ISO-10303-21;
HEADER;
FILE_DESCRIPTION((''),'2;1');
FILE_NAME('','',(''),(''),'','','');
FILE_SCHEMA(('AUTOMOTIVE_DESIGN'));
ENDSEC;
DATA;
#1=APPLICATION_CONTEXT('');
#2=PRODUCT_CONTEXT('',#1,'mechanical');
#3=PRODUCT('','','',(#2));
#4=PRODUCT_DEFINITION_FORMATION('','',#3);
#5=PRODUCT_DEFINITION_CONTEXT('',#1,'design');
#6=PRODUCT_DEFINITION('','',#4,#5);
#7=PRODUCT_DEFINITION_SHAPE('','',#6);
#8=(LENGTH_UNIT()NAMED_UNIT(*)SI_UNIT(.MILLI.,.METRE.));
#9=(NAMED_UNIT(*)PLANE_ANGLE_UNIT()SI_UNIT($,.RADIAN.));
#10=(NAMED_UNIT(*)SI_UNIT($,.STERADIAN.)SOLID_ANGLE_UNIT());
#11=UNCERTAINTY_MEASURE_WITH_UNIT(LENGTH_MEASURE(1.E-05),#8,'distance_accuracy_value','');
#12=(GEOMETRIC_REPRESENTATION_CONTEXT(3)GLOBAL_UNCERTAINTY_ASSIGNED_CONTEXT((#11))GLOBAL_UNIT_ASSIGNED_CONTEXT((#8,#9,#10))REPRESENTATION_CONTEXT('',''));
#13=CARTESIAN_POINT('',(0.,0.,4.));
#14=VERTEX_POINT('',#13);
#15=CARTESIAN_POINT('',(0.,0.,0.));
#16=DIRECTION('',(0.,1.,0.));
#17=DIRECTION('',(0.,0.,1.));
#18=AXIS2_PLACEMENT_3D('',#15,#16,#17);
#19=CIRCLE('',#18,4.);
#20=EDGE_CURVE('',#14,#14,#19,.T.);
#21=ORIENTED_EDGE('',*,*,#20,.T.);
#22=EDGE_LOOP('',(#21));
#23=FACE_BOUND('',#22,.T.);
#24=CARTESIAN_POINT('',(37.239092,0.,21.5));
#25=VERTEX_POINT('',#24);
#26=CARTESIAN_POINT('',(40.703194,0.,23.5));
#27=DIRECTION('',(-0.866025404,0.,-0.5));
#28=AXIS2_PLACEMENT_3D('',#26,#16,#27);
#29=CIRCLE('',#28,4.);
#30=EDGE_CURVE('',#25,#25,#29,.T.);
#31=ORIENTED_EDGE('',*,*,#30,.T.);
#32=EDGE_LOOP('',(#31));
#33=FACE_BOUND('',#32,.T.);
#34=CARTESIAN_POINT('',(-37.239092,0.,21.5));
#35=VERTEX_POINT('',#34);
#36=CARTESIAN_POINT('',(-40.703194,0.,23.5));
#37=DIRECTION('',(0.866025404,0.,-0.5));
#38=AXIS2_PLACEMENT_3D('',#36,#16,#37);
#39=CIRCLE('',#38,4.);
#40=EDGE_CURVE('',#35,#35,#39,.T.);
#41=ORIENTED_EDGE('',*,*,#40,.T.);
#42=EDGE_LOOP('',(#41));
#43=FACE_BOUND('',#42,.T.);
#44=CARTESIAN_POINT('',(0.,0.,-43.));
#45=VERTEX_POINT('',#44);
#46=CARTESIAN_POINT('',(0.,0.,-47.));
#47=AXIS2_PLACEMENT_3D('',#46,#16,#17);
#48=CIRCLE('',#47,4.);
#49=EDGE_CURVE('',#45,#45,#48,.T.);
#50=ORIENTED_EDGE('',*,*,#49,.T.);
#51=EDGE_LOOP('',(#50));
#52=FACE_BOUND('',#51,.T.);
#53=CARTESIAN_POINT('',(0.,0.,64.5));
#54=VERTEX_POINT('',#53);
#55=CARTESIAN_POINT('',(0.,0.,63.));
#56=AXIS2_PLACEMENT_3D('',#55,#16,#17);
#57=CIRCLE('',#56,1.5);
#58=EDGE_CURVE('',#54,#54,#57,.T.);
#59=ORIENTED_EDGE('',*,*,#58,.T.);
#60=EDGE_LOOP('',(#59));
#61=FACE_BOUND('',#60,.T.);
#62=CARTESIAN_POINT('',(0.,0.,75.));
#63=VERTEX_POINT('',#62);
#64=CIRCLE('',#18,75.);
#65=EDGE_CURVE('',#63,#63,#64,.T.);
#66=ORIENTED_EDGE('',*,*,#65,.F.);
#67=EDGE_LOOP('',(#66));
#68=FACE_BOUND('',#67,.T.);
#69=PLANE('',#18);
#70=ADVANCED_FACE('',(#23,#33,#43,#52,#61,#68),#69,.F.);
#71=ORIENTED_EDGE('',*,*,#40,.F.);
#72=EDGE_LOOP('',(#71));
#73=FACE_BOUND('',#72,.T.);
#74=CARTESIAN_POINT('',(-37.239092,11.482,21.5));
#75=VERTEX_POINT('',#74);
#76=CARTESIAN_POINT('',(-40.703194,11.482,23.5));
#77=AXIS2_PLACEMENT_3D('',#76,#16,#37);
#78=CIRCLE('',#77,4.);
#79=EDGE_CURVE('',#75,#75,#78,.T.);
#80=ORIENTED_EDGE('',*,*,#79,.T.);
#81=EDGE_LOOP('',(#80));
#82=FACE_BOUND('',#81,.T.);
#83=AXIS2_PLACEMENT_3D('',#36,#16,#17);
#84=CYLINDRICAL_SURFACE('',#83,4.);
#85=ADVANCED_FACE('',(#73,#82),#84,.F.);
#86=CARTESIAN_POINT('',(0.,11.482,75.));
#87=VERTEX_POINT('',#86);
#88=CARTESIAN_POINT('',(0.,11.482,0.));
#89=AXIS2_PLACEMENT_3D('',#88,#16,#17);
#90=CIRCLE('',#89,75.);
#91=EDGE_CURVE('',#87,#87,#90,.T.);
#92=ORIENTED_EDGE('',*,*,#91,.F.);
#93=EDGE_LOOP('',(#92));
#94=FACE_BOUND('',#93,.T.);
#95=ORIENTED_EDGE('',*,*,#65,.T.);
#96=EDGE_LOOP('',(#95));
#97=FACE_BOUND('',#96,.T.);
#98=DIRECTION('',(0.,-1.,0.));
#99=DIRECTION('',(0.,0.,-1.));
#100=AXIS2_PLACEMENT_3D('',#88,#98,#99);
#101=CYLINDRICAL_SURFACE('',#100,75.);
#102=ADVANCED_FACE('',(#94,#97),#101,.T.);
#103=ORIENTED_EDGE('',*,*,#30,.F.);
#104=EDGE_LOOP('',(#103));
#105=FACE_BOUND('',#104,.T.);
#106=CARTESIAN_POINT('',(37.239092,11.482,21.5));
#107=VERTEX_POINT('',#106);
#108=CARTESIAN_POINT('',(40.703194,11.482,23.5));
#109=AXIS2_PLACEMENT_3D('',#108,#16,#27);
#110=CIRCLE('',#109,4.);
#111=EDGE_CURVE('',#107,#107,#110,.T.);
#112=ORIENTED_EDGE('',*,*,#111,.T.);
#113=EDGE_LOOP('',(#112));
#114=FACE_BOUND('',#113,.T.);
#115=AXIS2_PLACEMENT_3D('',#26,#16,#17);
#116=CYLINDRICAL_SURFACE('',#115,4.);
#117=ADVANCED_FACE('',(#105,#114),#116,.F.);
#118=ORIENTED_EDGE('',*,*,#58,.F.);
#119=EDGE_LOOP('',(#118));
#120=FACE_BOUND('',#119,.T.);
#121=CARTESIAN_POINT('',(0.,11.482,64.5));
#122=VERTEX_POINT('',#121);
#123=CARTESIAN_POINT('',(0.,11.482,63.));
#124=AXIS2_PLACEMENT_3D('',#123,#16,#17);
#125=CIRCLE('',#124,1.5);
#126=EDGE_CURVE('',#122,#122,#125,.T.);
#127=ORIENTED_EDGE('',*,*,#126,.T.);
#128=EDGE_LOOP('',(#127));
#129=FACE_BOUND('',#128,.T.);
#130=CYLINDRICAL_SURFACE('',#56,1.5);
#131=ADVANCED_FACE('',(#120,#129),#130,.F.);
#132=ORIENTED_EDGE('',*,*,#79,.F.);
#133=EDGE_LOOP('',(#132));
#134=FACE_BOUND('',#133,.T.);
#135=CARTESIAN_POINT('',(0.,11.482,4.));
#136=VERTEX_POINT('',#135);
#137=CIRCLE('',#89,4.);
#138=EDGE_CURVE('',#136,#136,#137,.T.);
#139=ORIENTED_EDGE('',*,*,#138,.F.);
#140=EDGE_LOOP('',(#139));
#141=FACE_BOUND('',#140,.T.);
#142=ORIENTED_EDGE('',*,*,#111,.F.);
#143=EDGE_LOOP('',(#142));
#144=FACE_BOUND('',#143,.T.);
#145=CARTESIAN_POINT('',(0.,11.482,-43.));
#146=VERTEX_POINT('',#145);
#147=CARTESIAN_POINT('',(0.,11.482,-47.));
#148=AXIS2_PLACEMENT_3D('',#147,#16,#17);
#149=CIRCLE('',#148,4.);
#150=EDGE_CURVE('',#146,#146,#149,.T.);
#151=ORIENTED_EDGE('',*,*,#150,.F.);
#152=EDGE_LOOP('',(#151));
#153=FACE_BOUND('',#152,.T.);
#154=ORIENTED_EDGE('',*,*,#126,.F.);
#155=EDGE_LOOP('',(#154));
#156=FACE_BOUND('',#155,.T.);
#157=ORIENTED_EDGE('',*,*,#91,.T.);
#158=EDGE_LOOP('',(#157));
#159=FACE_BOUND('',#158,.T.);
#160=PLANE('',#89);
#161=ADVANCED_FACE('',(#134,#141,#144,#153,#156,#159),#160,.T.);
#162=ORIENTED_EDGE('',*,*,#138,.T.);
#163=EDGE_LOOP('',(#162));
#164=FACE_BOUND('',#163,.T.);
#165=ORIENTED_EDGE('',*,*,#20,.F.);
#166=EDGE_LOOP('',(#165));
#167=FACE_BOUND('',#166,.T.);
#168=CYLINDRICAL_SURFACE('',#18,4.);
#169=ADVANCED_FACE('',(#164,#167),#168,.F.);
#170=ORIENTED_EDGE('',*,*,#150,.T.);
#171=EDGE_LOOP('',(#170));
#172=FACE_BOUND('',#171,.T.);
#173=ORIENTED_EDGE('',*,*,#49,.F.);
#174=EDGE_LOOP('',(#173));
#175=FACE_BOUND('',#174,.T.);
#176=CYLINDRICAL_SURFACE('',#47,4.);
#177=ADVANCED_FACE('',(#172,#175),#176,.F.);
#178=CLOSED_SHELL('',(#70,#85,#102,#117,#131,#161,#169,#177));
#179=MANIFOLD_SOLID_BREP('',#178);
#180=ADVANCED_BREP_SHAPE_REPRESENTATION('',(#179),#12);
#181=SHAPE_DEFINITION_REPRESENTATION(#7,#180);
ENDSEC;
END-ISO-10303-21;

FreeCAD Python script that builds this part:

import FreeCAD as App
import Part
import Sketcher
Q = App.Units.Quantity

doc = App.newDocument("Part")
body = doc.addObject("PartDesign::Body", "Body")

sketch1 = body.newObject("Sketcher::SketchObject", "Sketch")
sketch1.AttachmentSupport = (doc.getObject("XZ_Plane"), [""])
sketch1.MapMode = "FlatFace"
sketch1.addGeometry(Part.Circle(App.Vector(0, 0, 0), App.Vector(0, 0, 1), 75), False)
sketch1.addConstraint([
    Sketcher.Constraint("Coincident", 0, 3, -1, 1),
    Sketcher.Constraint("Diameter", 0, Q("150 mm")),
])
pad1 = body.newObject("PartDesign::Pad", "Pad")
pad1.Profile = sketch1
pad1.Length = 11.482
pad1.Reversed = True

sketch2 = body.newObject("Sketcher::SketchObject", "Sketch001")
sketch2.AttachmentSupport = (doc.getObject("XZ_Plane"), [""])
sketch2.MapMode = "FlatFace"
sketch2.AttachmentOffset = App.Placement(App.Vector(0, 0, -11.482), App.Rotation())
sketch2.addGeometry(Part.Circle(App.Vector(0, -47, 0), App.Vector(0, 0, 1), 4), False)
sketch2.addConstraint([
    Sketcher.Constraint("PointOnObject", 0, 3, -2),
    Sketcher.Constraint("Diameter", 0, Q("8 mm")),
    Sketcher.Constraint("DistanceY", 0, 3, -1, 1, Q("47 mm")),
])
pocket1 = body.newObject("PartDesign::Pocket", "Pocket")
pocket1.Profile = sketch2
pocket1.Type = "ThroughAll"
pocket1.Reversed = True
doc.recompute()

polarpattern = body.newObject("PartDesign::PolarPattern", "PolarPattern")
polarpattern.Originals = [pocket1]
polarpattern.Axis = (doc.getObject("Y_Axis"), [""])
polarpattern.Angle = 360
polarpattern.Occurrences = 3
body.Tip = polarpattern

sketch3 = body.newObject("Sketcher::SketchObject", "Sketch002")
sketch3.AttachmentSupport = (doc.getObject("XZ_Plane"), [""])
sketch3.MapMode = "FlatFace"
sketch3.AttachmentOffset = App.Placement(App.Vector(0, 0, -11.482), App.Rotation())
sketch3.addGeometry(Part.Circle(App.Vector(0, 63, 0), App.Vector(0, 0, 1), 1.5), False)
sketch3.addConstraint([
    Sketcher.Constraint("PointOnObject", 0, 3, -2),
    Sketcher.Constraint("Diameter", 0, Q("3 mm")),
    Sketcher.Constraint("DistanceY", -1, 1, 0, 3, Q("63 mm")),
])
pocket2 = body.newObject("PartDesign::Pocket", "Pocket001")
pocket2.Profile = sketch3
pocket2.Type = "ThroughAll"
pocket2.Reversed = True

sketch4 = body.newObject("Sketcher::SketchObject", "Sketch003")
sketch4.AttachmentSupport = (doc.getObject("XZ_Plane"), [""])
sketch4.MapMode = "FlatFace"
sketch4.AttachmentOffset = App.Placement(App.Vector(0, 0, -11.482), App.Rotation())
sketch4.addGeometry(Part.Circle(App.Vector(0, 0, 0), App.Vector(0, 0, 1), 4), False)
sketch4.addConstraint([
    Sketcher.Constraint("Coincident", 0, 3, -1, 1),
    Sketcher.Constraint("Diameter", 0, Q("8 mm")),
])
pocket3 = body.newObject("PartDesign::Pocket", "Pocket002")
pocket3.Profile = sketch4
pocket3.Type = "ThroughAll"
pocket3.Reversed = True

doc.recompute()
